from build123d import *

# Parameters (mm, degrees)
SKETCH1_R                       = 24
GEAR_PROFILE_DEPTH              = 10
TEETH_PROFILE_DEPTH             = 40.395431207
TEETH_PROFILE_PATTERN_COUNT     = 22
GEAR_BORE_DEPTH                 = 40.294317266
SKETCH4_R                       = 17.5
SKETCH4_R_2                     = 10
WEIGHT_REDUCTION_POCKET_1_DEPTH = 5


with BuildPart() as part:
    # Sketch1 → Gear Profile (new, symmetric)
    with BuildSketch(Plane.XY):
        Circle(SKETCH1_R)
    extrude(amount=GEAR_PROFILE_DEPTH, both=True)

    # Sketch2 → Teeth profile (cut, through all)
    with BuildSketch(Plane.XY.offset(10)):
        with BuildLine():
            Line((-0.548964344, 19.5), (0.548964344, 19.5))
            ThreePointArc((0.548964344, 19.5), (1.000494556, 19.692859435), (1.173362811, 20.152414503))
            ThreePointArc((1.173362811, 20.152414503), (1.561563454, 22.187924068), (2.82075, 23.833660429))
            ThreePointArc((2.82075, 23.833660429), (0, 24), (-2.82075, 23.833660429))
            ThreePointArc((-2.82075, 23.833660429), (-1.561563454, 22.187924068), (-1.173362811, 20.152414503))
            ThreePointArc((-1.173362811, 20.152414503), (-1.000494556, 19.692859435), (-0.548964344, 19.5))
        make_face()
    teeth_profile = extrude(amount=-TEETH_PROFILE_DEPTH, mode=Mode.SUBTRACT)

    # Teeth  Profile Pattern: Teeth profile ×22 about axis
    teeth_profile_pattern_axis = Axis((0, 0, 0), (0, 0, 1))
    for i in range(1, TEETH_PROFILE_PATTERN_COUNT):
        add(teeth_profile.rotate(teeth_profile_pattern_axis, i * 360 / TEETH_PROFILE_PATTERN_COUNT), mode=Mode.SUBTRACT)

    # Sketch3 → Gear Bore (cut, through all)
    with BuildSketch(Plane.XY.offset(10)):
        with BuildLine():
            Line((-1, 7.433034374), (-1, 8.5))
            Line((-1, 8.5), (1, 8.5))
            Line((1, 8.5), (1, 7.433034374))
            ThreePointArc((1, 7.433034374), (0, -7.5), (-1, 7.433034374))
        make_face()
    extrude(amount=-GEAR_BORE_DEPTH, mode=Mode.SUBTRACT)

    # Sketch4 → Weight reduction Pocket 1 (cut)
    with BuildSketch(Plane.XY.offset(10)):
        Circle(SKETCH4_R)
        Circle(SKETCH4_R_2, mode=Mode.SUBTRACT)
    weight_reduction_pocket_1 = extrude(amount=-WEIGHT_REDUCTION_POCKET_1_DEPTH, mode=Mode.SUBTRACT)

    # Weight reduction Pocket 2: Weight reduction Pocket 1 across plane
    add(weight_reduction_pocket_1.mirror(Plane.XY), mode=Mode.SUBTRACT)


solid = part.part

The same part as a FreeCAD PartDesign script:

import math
import FreeCAD as App
import Part
import Sketcher
Q = App.Units.Quantity

doc = App.newDocument("Part")
body = doc.addObject("PartDesign::Body", "Body")

# Sketch on XY plane
sketch1 = body.newObject("Sketcher::SketchObject", "Sketch")
sketch1.AttachmentSupport = (doc.getObject("XY_Plane"), [""])
sketch1.MapMode = "FlatFace"
sketch1.addGeometry(Part.Circle(App.Vector(0, 0, 0), App.Vector(0, 0, 1), 24), False)
sketch1.addConstraint([
    Sketcher.Constraint("Coincident", 0, 3, -1, 1),
    Sketcher.Constraint("Diameter", 0, Q("48 mm")),
])
pad1 = body.newObject("PartDesign::Pad", "Pad")
pad1.Profile = sketch1
pad1.Length = 20
pad1.Midplane = True

# Sketch on XY plane
sketch2 = body.newObject("Sketcher::SketchObject", "Sketch001")
sketch2.AttachmentSupport = (doc.getObject("XY_Plane"), [""])
sketch2.MapMode = "FlatFace"
sketch2.AttachmentOffset = App.Placement(App.Vector(0, 0, 10), App.Rotation())
sketch2.addGeometry([
    Part.LineSegment(App.Vector(-0.548964, 19.5, 0), App.Vector(0.548964, 19.5, 0)),  # 0
    Part.ArcOfCircle(Part.Circle(App.Vector(0.548964, 20.125, 0), App.Vector(0, 0, 1), 0.625), math.radians(-90), math.radians(2.513983)),  # 1
    Part.ArcOfCircle(Part.Circle(App.Vector(5.669032, 20.349799, 0), App.Vector(0, 0, 1), 4.5), math.radians(129.268216), math.radians(182.513983)),  # 2
    Part.ArcOfCircle(Part.Circle(App.Vector(0, 0, 0), App.Vector(0, 0, 1), 24), math.radians(83.250355), math.radians(96.749645)),  # 3
    Part.ArcOfCircle(Part.Circle(App.Vector(-5.669032, 20.349799, 0), App.Vector(0, 0, 1), 4.5), math.radians(-2.513983), math.radians(50.731784)),  # 4
    Part.ArcOfCircle(Part.Circle(App.Vector(-0.548964, 20.125, 0), App.Vector(0, 0, 1), 0.625), math.radians(177.486017), math.radians(270)),  # 5
], False)
sketch2.addConstraint([
    Sketcher.Constraint("Tangent", 0, 2, 1, 1),
    Sketcher.Constraint("Tangent", 1, 2, 2, 2),
    Sketcher.Constraint("Coincident", 2, 1, 3, 1),
    Sketcher.Constraint("Coincident", 3, 2, 4, 2),
    Sketcher.Constraint("Tangent", 4, 1, 5, 1),
    Sketcher.Constraint("Tangent", 5, 2, 0, 1),
    Sketcher.Constraint("Horizontal", 0),
    Sketcher.Constraint("Coincident", 3, 3, -1, 1),
    Sketcher.Constraint("Equal", 2, 4),
    Sketcher.Constraint("Equal", 1, 5),
    Sketcher.Constraint("Symmetric", 2, 3, 4, 3, -2),
    Sketcher.Constraint("Radius", 3, Q("24 mm")),
    Sketcher.Constraint("Radius", 2, Q("4.5 mm")),
    Sketcher.Constraint("Radius", 1, Q("0.625 mm")),
    Sketcher.Constraint("DistanceY", -1, 1, 0, 2, Q("19.5 mm")),
    Sketcher.Constraint("DistanceX", 0, 1, 0, 2, Q("1.097929 mm")),
    Sketcher.Constraint("DistanceY", -1, 1, 2, 3, Q("20.349799 mm")),
])
pocket1 = body.newObject("PartDesign::Pocket", "Pocket")
pocket1.Profile = sketch2
pocket1.Type = "ThroughAll"
doc.recompute()

polarpattern = body.newObject("PartDesign::PolarPattern", "PolarPattern")
polarpattern.Originals = [pocket1]
polarpattern.Axis = (doc.getObject("Z_Axis"), [""])
polarpattern.Angle = 360
polarpattern.Occurrences = 22
body.Tip = polarpattern

# Sketch on XY plane
sketch3 = body.newObject("Sketcher::SketchObject", "Sketch002")
sketch3.AttachmentSupport = (doc.getObject("XY_Plane"), [""])
sketch3.MapMode = "FlatFace"
sketch3.AttachmentOffset = App.Placement(App.Vector(0, 0, 10), App.Rotation())
sketch3.addGeometry([
    Part.LineSegment(App.Vector(-1, 8.5, 0), App.Vector(-1, 7.433034, 0)),
    Part.ArcOfCircle(Part.Circle(App.Vector(0, 0, 0), App.Vector(0, 0, 1), 7.5), math.radians(97.662256), math.radians(442.337744)),
    Part.LineSegment(App.Vector(1, 7.433034, 0), App.Vector(1, 8.5, 0)),
    Part.LineSegment(App.Vector(1, 8.5, 0), App.Vector(-1, 8.5, 0)),
], False)
sketch3.addConstraint([
    Sketcher.Constraint("Coincident", 0, 2, 1, 1),
    Sketcher.Constraint("Coincident", 1, 2, 2, 1),
    Sketcher.Constraint("Coincident", 2, 2, 3, 1),
    Sketcher.Constraint("Coincident", 3, 2, 0, 1),
    Sketcher.Constraint("Vertical", 0),
    Sketcher.Constraint("Vertical", 2),
    Sketcher.Constraint("Horizontal", 3),
    Sketcher.Constraint("Coincident", 1, 3, -1, 1),
    Sketcher.Constraint("Horizontal", 0, 2, 1, 2),
    Sketcher.Constraint("Radius", 1, Q("7.5 mm")),
    Sketcher.Constraint("DistanceX", 3, 2, 3, 1, Q("2 mm")),
    Sketcher.Constraint("DistanceY", -1, 1, 2, 2, Q("8.5 mm")),
])
pocket2 = body.newObject("PartDesign::Pocket", "Pocket001")
pocket2.Profile = sketch3
pocket2.Type = "ThroughAll"

# Sketch on XY plane
sketch4 = body.newObject("Sketcher::SketchObject", "Sketch003")
sketch4.AttachmentSupport = (doc.getObject("XY_Plane"), [""])
sketch4.MapMode = "FlatFace"
sketch4.AttachmentOffset = App.Placement(App.Vector(0, 0, 10), App.Rotation())
sketch4.addGeometry([
    Part.Circle(App.Vector(0, 0, 0), App.Vector(0, 0, 1), 17.5),
    Part.Circle(App.Vector(0, 0, 0), App.Vector(0, 0, 1), 10),
], False)
sketch4.addConstraint([
    Sketcher.Constraint("Coincident", 0, 3, -1, 1),
    Sketcher.Constraint("Coincident", 1, 3, -1, 1),
    Sketcher.Constraint("Diameter", 0, Q("35 mm")),
    Sketcher.Constraint("Diameter", 1, Q("20 mm")),
])
pocket3 = body.newObject("PartDesign::Pocket", "Pocket002")
pocket3.Profile = sketch4
pocket3.Length = 5
doc.recompute()

mirrored = body.newObject("PartDesign::Mirrored", "Mirrored")
mirrored.Originals = [pocket3]
mirrored.MirrorPlane = (doc.getObject("XY_Plane"), [""])
body.Tip = mirrored

doc.recompute()
